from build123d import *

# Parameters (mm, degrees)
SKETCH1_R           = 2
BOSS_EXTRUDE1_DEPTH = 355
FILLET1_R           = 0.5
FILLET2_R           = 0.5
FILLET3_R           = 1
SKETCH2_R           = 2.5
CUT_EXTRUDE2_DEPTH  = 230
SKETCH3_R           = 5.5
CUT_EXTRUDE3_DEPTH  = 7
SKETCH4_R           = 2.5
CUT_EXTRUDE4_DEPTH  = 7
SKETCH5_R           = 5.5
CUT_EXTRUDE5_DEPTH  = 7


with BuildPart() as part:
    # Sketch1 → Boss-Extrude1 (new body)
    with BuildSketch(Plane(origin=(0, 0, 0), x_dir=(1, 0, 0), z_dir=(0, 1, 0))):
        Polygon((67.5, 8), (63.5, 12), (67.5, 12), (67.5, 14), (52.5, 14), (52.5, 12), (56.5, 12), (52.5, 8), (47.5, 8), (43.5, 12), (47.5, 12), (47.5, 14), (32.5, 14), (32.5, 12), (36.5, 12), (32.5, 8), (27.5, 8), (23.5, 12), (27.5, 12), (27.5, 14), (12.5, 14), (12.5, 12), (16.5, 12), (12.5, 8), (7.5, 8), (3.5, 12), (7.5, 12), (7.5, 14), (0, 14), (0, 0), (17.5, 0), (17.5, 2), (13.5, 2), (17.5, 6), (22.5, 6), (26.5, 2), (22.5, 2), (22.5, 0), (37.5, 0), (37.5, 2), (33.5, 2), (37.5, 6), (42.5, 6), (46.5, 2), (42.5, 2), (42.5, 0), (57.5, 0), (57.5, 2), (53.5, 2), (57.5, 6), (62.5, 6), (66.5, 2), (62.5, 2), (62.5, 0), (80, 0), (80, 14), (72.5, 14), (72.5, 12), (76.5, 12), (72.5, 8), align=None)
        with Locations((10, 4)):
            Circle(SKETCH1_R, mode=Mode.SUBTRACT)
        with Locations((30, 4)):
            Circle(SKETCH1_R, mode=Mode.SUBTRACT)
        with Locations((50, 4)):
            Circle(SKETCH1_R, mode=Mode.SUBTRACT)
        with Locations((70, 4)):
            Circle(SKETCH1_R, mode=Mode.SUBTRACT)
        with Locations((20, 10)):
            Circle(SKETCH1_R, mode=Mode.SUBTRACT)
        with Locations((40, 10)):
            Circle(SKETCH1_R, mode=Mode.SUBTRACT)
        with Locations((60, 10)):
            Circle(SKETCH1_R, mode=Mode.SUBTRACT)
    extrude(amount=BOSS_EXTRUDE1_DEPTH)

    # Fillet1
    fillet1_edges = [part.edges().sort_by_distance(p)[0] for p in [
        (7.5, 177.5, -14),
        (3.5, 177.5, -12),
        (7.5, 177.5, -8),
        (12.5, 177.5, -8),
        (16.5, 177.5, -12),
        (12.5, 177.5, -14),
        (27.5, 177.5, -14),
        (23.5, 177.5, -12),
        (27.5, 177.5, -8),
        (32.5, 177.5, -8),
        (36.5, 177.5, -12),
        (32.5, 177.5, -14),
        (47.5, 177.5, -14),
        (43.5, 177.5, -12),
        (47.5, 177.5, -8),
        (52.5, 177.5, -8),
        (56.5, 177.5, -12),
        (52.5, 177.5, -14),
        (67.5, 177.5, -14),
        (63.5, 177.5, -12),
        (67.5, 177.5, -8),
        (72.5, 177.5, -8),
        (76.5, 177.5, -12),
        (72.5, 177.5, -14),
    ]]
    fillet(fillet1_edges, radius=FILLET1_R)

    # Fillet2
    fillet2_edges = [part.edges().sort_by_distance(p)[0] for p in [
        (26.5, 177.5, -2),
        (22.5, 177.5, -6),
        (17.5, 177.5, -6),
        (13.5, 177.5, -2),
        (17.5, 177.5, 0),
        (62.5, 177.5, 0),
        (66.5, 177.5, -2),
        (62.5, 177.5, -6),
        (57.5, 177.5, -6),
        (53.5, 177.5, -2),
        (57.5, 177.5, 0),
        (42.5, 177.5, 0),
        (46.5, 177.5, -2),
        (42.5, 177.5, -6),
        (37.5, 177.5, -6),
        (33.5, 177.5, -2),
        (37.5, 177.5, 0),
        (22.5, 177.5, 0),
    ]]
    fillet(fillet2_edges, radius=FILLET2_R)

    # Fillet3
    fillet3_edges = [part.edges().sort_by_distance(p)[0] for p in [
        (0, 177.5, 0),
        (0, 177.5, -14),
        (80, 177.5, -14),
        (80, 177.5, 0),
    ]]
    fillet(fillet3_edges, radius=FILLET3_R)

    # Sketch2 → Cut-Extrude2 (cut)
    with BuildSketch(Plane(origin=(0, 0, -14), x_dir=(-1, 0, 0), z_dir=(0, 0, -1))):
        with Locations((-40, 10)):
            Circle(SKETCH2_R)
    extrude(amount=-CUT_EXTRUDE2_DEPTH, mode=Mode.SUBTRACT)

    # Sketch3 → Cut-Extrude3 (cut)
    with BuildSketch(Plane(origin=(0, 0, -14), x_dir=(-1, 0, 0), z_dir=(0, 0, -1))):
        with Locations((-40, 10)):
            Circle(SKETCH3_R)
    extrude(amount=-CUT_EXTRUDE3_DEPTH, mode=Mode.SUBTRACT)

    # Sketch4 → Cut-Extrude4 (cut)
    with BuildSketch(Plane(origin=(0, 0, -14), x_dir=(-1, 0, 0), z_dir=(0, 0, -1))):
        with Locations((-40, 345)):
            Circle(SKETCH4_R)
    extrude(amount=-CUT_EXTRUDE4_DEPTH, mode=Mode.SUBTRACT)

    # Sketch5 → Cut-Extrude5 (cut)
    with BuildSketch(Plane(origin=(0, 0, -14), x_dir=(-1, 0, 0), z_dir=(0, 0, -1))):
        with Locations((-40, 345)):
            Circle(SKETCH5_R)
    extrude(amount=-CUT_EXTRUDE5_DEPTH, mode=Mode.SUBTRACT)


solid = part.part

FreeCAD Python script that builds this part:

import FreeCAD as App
import Part
import Sketcher
from FreeCAD import Vector
Q = App.Units.Quantity


def edges_at(feature, points):
    """Names of the edges that pass closest to the given points."""
    edges = feature.Shape.Edges
    near = lambda p: min(range(len(edges)), key=lambda i: edges[i].distToShape(Part.Vertex(*p))[0])
    return sorted({f"Edge{near(p) + 1}" for p in points})

doc = App.newDocument("Part")
body = doc.addObject("PartDesign::Body", "Body")

# Sketch on XZ plane
sketch1 = body.newObject("Sketcher::SketchObject", "Sketch")
sketch1.AttachmentSupport = (doc.getObject("XZ_Plane"), [""])
sketch1.MapMode = "FlatFace"
sketch1.addGeometry([
    Part.LineSegment(Vector(67.5, -8, 0), Vector(63.5, -12, 0)),  # 0
    Part.LineSegment(Vector(63.5, -12, 0), Vector(67.5, -12, 0)),  # 1
    Part.LineSegment(Vector(67.5, -12, 0), Vector(67.5, -14, 0)),  # 2
    Part.LineSegment(Vector(67.5, -14, 0), Vector(52.5, -14, 0)),  # 3
    Part.LineSegment(Vector(52.5, -14, 0), Vector(52.5, -12, 0)),  # 4
    Part.LineSegment(Vector(52.5, -12, 0), Vector(56.5, -12, 0)),  # 5
    Part.LineSegment(Vector(56.5, -12, 0), Vector(52.5, -8, 0)),  # 6
    Part.LineSegment(Vector(52.5, -8, 0), Vector(47.5, -8, 0)),  # 7
    Part.LineSegment(Vector(47.5, -8, 0), Vector(43.5, -12, 0)),  # 8
    Part.LineSegment(Vector(43.5, -12, 0), Vector(47.5, -12, 0)),  # 9
    Part.LineSegment(Vector(47.5, -12, 0), Vector(47.5, -14, 0)),  # 10
    Part.LineSegment(Vector(47.5, -14, 0), Vector(32.5, -14, 0)),  # 11
    Part.LineSegment(Vector(32.5, -14, 0), Vector(32.5, -12, 0)),  # 12
    Part.LineSegment(Vector(32.5, -12, 0), Vector(36.5, -12, 0)),  # 13
    Part.LineSegment(Vector(36.5, -12, 0), Vector(32.5, -8, 0)),  # 14
    Part.LineSegment(Vector(32.5, -8, 0), Vector(27.5, -8, 0)),  # 15
    Part.LineSegment(Vector(27.5, -8, 0), Vector(23.5, -12, 0)),  # 16
    Part.LineSegment(Vector(23.5, -12, 0), Vector(27.5, -12, 0)),  # 17
    Part.LineSegment(Vector(27.5, -12, 0), Vector(27.5, -14, 0)),  # 18
    Part.LineSegment(Vector(27.5, -14, 0), Vector(12.5, -14, 0)),  # 19
    Part.LineSegment(Vector(12.5, -14, 0), Vector(12.5, -12, 0)),  # 20
    Part.LineSegment(Vector(12.5, -12, 0), Vector(16.5, -12, 0)),  # 21
    Part.LineSegment(Vector(16.5, -12, 0), Vector(12.5, -8, 0)),  # 22
    Part.LineSegment(Vector(12.5, -8, 0), Vector(7.5, -8, 0)),  # 23
    Part.LineSegment(Vector(7.5, -8, 0), Vector(3.5, -12, 0)),  # 24
    Part.LineSegment(Vector(3.5, -12, 0), Vector(7.5, -12, 0)),  # 25
    Part.LineSegment(Vector(7.5, -12, 0), Vector(7.5, -14, 0)),  # 26
    Part.LineSegment(Vector(7.5, -14, 0), Vector(0, -14, 0)),  # 27
    Part.LineSegment(Vector(0, -14, 0), Vector(0, 0, 0)),  # 28
    Part.LineSegment(Vector(0, 0, 0), Vector(17.5, 0, 0)),  # 29
    Part.LineSegment(Vector(17.5, 0, 0), Vector(17.5, -2, 0)),  # 30
    Part.LineSegment(Vector(17.5, -2, 0), Vector(13.5, -2, 0)),  # 31
    Part.LineSegment(Vector(13.5, -2, 0), Vector(17.5, -6, 0)),  # 32
    Part.LineSegment(Vector(17.5, -6, 0), Vector(22.5, -6, 0)),  # 33
    Part.LineSegment(Vector(22.5, -6, 0), Vector(26.5, -2, 0)),  # 34
    Part.LineSegment(Vector(26.5, -2, 0), Vector(22.5, -2, 0)),  # 35
    Part.LineSegment(Vector(22.5, -2, 0), Vector(22.5, 0, 0)),  # 36
    Part.LineSegment(Vector(22.5, 0, 0), Vector(37.5, 0, 0)),  # 37
    Part.LineSegment(Vector(37.5, 0, 0), Vector(37.5, -2, 0)),  # 38
    Part.LineSegment(Vector(37.5, -2, 0), Vector(33.5, -2, 0)),  # 39
    Part.LineSegment(Vector(33.5, -2, 0), Vector(37.5, -6, 0)),  # 40
    Part.LineSegment(Vector(37.5, -6, 0), Vector(42.5, -6, 0)),  # 41
    Part.LineSegment(Vector(42.5, -6, 0), Vector(46.5, -2, 0)),  # 42
    Part.LineSegment(Vector(46.5, -2, 0), Vector(42.5, -2, 0)),  # 43
    Part.LineSegment(Vector(42.5, -2, 0), Vector(42.5, 0, 0)),  # 44
    Part.LineSegment(Vector(42.5, 0, 0), Vector(57.5, 0, 0)),  # 45
    Part.LineSegment(Vector(57.5, 0, 0), Vector(57.5, -2, 0)),  # 46
    Part.LineSegment(Vector(57.5, -2, 0), Vector(53.5, -2, 0)),  # 47
    Part.LineSegment(Vector(53.5, -2, 0), Vector(57.5, -6, 0)),  # 48
    Part.LineSegment(Vector(57.5, -6, 0), Vector(62.5, -6, 0)),  # 49
    Part.LineSegment(Vector(62.5, -6, 0), Vector(66.5, -2, 0)),  # 50
    Part.LineSegment(Vector(66.5, -2, 0), Vector(62.5, -2, 0)),  # 51
    Part.LineSegment(Vector(62.5, -2, 0), Vector(62.5, 0, 0)),  # 52
    Part.LineSegment(Vector(62.5, 0, 0), Vector(80, 0, 0)),  # 53
    Part.LineSegment(Vector(80, 0, 0), Vector(80, -14, 0)),  # 54
    Part.LineSegment(Vector(80, -14, 0), Vector(72.5, -14, 0)),  # 55
    Part.LineSegment(Vector(72.5, -14, 0), Vector(72.5, -12, 0)),  # 56
    Part.LineSegment(Vector(72.5, -12, 0), Vector(76.5, -12, 0)),  # 57
    Part.LineSegment(Vector(76.5, -12, 0), Vector(72.5, -8, 0)),  # 58
    Part.LineSegment(Vector(72.5, -8, 0), Vector(67.5, -8, 0)),  # 59
    Part.Circle(Vector(10, -4, 0), Vector(0, 0, 1), 2),  # 60
    Part.Circle(Vector(30, -4, 0), Vector(0, 0, 1), 2),  # 61
    Part.Circle(Vector(50, -4, 0), Vector(0, 0, 1), 2),  # 62
    Part.Circle(Vector(70, -4, 0), Vector(0, 0, 1), 2),  # 63
    Part.Circle(Vector(20, -10, 0), Vector(0, 0, 1), 2),  # 64
    Part.Circle(Vector(40, -10, 0), Vector(0, 0, 1), 2),  # 65
    Part.Circle(Vector(60, -10, 0), Vector(0, 0, 1), 2),  # 66
], False)
sketch1.addConstraint([
    Sketcher.Constraint("Coincident", 0, 2, 1, 1),
    Sketcher.Constraint("Coincident", 1, 2, 2, 1),
    Sketcher.Constraint("Coincident", 2, 2, 3, 1),
    Sketcher.Constraint("Coincident", 3, 2, 4, 1),
    Sketcher.Constraint("Coincident", 4, 2, 5, 1),
    Sketcher.Constraint("Coincident", 5, 2, 6, 1),
    Sketcher.Constraint("Coincident", 6, 2, 7, 1),
    Sketcher.Constraint("Coincident", 7, 2, 8, 1),
    Sketcher.Constraint("Coincident", 8, 2, 9, 1),
    Sketcher.Constraint("Coincident", 9, 2, 10, 1),
    Sketcher.Constraint("Coincident", 10, 2, 11, 1),
    Sketcher.Constraint("Coincident", 11, 2, 12, 1),
    Sketcher.Constraint("Coincident", 12, 2, 13, 1),
    Sketcher.Constraint("Coincident", 13, 2, 14, 1),
    Sketcher.Constraint("Coincident", 14, 2, 15, 1),
    Sketcher.Constraint("Coincident", 15, 2, 16, 1),
    Sketcher.Constraint("Coincident", 16, 2, 17, 1),
    Sketcher.Constraint("Coincident", 17, 2, 18, 1),
    Sketcher.Constraint("Coincident", 18, 2, 19, 1),
    Sketcher.Constraint("Coincident", 19, 2, 20, 1),
    Sketcher.Constraint("Coincident", 20, 2, 21, 1),
    Sketcher.Constraint("Coincident", 21, 2, 22, 1),
    Sketcher.Constraint("Coincident", 22, 2, 23, 1),
    Sketcher.Constraint("Coincident", 23, 2, 24, 1),
    Sketcher.Constraint("Coincident", 24, 2, 25, 1),
    Sketcher.Constraint("Coincident", 25, 2, 26, 1),
    Sketcher.Constraint("Coincident", 26, 2, 27, 1),
    Sketcher.Constraint("Coincident", 27, 2, 28, 1),
    Sketcher.Constraint("Coincident", 28, 2, 29, 1),
    Sketcher.Constraint("Coincident", 29, 2, 30, 1),
    Sketcher.Constraint("Coincident", 30, 2, 31, 1),
    Sketcher.Constraint("Coincident", 31, 2, 32, 1),
    Sketcher.Constraint("Coincident", 32, 2, 33, 1),
    Sketcher.Constraint("Coincident", 33, 2, 34, 1),
    Sketcher.Constraint("Coincident", 34, 2, 35, 1),
    Sketcher.Constraint("Coincident", 35, 2, 36, 1),
    Sketcher.Constraint("Coincident", 36, 2, 37, 1),
    Sketcher.Constraint("Coincident", 37, 2, 38, 1),
    Sketcher.Constraint("Coincident", 38, 2, 39, 1),
    Sketcher.Constraint("Coincident", 39, 2, 40, 1),
    Sketcher.Constraint("Coincident", 40, 2, 41, 1),
    Sketcher.Constraint("Coincident", 41, 2, 42, 1),
    Sketcher.Constraint("Coincident", 42, 2, 43, 1),
    Sketcher.Constraint("Coincident", 43, 2, 44, 1),
    Sketcher.Constraint("Coincident", 44, 2, 45, 1),
    Sketcher.Constraint("Coincident", 45, 2, 46, 1),
    Sketcher.Constraint("Coincident", 46, 2, 47, 1),
    Sketcher.Constraint("Coincident", 47, 2, 48, 1),
    Sketcher.Constraint("Coincident", 48, 2, 49, 1),
    Sketcher.Constraint("Coincident", 49, 2, 50, 1),
    Sketcher.Constraint("Coincident", 50, 2, 51, 1),
    Sketcher.Constraint("Coincident", 51, 2, 52, 1),
    Sketcher.Constraint("Coincident", 52, 2, 53, 1),
    Sketcher.Constraint("Coincident", 53, 2, 54, 1),
    Sketcher.Constraint("Coincident", 54, 2, 55, 1),
    Sketcher.Constraint("Coincident", 55, 2, 56, 1),
    Sketcher.Constraint("Coincident", 56, 2, 57, 1),
    Sketcher.Constraint("Coincident", 57, 2, 58, 1),
    Sketcher.Constraint("Coincident", 58, 2, 59, 1),
    Sketcher.Constraint("Coincident", 59, 2, 0, 1),
    Sketcher.Constraint("Horizontal", 1),
    Sketcher.Constraint("Vertical", 2),
    Sketcher.Constraint("Horizontal", 3),
    Sketcher.Constraint("Vertical", 4),
    Sketcher.Constraint("Horizontal", 5),
    Sketcher.Constraint("Horizontal", 7),
    Sketcher.Constraint("Horizontal", 9),
    Sketcher.Constraint("Vertical", 10),
    Sketcher.Constraint("Horizontal", 11),
    Sketcher.Constraint("Vertical", 12),
    Sketcher.Constraint("Horizontal", 13),
    Sketcher.Constraint("Horizontal", 15),
    Sketcher.Constraint("Horizontal", 17),
    Sketcher.Constraint("Vertical", 18),
    Sketcher.Constraint("Horizontal", 19),
    Sketcher.Constraint("Vertical", 20),
    Sketcher.Constraint("Horizontal", 21),
    Sketcher.Constraint("Horizontal", 23),
    Sketcher.Constraint("Horizontal", 25),
    Sketcher.Constraint("Vertical", 26),
    Sketcher.Constraint("Horizontal", 27),
    Sketcher.Constraint("Vertical", 28),
    Sketcher.Constraint("Horizontal", 29),
    Sketcher.Constraint("Vertical", 30),
    Sketcher.Constraint("Horizontal", 31),
    Sketcher.Constraint("Horizontal", 33),
    Sketcher.Constraint("Horizontal", 35),
    Sketcher.Constraint("Vertical", 36),
    Sketcher.Constraint("Horizontal", 37),
    Sketcher.Constraint("Vertical", 38),
    Sketcher.Constraint("Horizontal", 39),
    Sketcher.Constraint("Horizontal", 41),
    Sketcher.Constraint("Horizontal", 43),
    Sketcher.Constraint("Vertical", 44),
    Sketcher.Constraint("Horizontal", 45),
    Sketcher.Constraint("Vertical", 46),
    Sketcher.Constraint("Horizontal", 47),
    Sketcher.Constraint("Horizontal", 49),
    Sketcher.Constraint("Horizontal", 51),
    Sketcher.Constraint("Vertical", 52),
    Sketcher.Constraint("Horizontal", 53),
    Sketcher.Constraint("Vertical", 54),
    Sketcher.Constraint("Horizontal", 55),
    Sketcher.Constraint("Vertical", 56),
    Sketcher.Constraint("Horizontal", 57),
    Sketcher.Constraint("Horizontal", 59),
    Sketcher.Constraint("Coincident", 28, 2, -1, 1),
    Sketcher.Constraint("Equal", 60, 61),
    Sketcher.Constraint("Equal", 61, 62),
    Sketcher.Constraint("Equal", 62, 63),
    Sketcher.Constraint("Equal", 63, 64),
    Sketcher.Constraint("Equal", 64, 65),
    Sketcher.Constraint("Equal", 65, 66),
    Sketcher.Constraint("PointOnObject", 36, 2, -1),
    Sketcher.Constraint("PointOnObject", 44, 2, -1),
    Sketcher.Constraint("PointOnObject", 52, 2, -1),
    Sketcher.Constraint("Perpendicular", 0, 6),
    Sketcher.Constraint("Perpendicular", 6, 8),
    Sketcher.Constraint("Perpendicular", 8, 14),
    Sketcher.Constraint("Perpendicular", 14, 16),
    Sketcher.Constraint("Perpendicular", 16, 22),
    Sketcher.Constraint("Perpendicular", 22, 24),
    Sketcher.Constraint("Perpendicular", 24, 32),
    Sketcher.Constraint("Perpendicular", 32, 34),
    Sketcher.Constraint("Perpendicular", 34, 40),
    Sketcher.Constraint("Perpendicular", 40, 42),
    Sketcher.Constraint("Perpendicular", 42, 48),
    Sketcher.Constraint("Perpendicular", 48, 50),
    Sketcher.Constraint("Perpendicular", 50, 58),
    Sketcher.Constraint("Horizontal", 60, 3, 61, 3),
    Sketcher.Constraint("Horizontal", 61, 3, 62, 3),
    Sketcher.Constraint("Horizontal", 62, 3, 63, 3),
    Sketcher.Constraint("Horizontal", 64, 3, 65, 3),
    Sketcher.Constraint("Horizontal", 65, 3, 66, 3),
    Sketcher.Constraint("Horizontal", 1, 2, 4, 2),
    Sketcher.Constraint("Horizontal", 5, 2, 8, 2),
    Sketcher.Constraint("Horizontal", 3, 2, 10, 2),
    Sketcher.Constraint("Horizontal", 9, 2, 12, 2),
    Sketcher.Constraint("Horizontal", 7, 2, 14, 2),
    Sketcher.Constraint("Horizontal", 13, 2, 16, 2),
    Sketcher.Constraint("Horizontal", 11, 2, 18, 2),
    Sketcher.Constraint("Horizontal", 17, 2, 20, 2),
    Sketcher.Constraint("Horizontal", 15, 2, 22, 2),
    Sketcher.Constraint("Horizontal", 21, 2, 24, 2),
    Sketcher.Constraint("Horizontal", 19, 2, 26, 2),
    Sketcher.Constraint("Horizontal", 31, 2, 34, 2),
    Sketcher.Constraint("Horizontal", 35, 2, 38, 2),
    Sketcher.Constraint("Horizontal", 33, 2, 40, 2),
    Sketcher.Constraint("Horizontal", 39, 2, 42, 2),
    Sketcher.Constraint("Horizontal", 43, 2, 46, 2),
    Sketcher.Constraint("Horizontal", 41, 2, 48, 2),
    Sketcher.Constraint("Horizontal", 47, 2, 50, 2),
    Sketcher.Constraint("Horizontal", 27, 2, 54, 2),
    Sketcher.Constraint("Horizontal", 25, 2, 56, 2),
    Sketcher.Constraint("Horizontal", 23, 2, 58, 2),
    Sketcher.Constraint("Vertical", 4, 2, 6, 2),
    Sketcher.Constraint("Vertical", 7, 2, 9, 2),
    Sketcher.Constraint("Vertical", 12, 2, 14, 2),
    Sketcher.Constraint("Vertical", 15, 2, 17, 2),
    Sketcher.Constraint("Vertical", 20, 2, 22, 2),
    Sketcher.Constraint("Vertical", 23, 2, 25, 2),
    Sketcher.Constraint("Vertical", 30, 2, 32, 2),
    Sketcher.Constraint("Vertical", 33, 2, 35, 2),
    Sketcher.Constraint("Vertical", 38, 2, 40, 2),
    Sketcher.Constraint("Vertical", 41, 2, 43, 2),
    Sketcher.Constraint("Vertical", 46, 2, 48, 2),
    Sketcher.Constraint("Vertical", 49, 2, 51, 2),
    Sketcher.Constraint("Vertical", 56, 2, 58, 2),
    Sketcher.Constraint("Vertical", 2, 2, 59, 2),
    Sketcher.Constraint("Equal", 1, 5),
    Sketcher.Constraint("Equal", 3, 11),
    Sketcher.Constraint("Equal", 7, 15),
    Sketcher.Constraint("Equal", 11, 19),
    Sketcher.Constraint("Equal", 15, 23),
    Sketcher.Constraint("Equal", 25, 31),
    Sketcher.Constraint("Equal", 23, 33),
    Sketcher.Constraint("Equal", 19, 37),
    Sketcher.Constraint("Equal", 33, 41),
    Sketcher.Constraint("Equal", 37, 45),
    Sketcher.Constraint("Equal", 41, 49),
    Sketcher.Constraint("Equal", 29, 53),
    Sketcher.Constraint("Equal", 27, 55),
    Sketcher.Constraint("Equal", 49, 59),
    Sketcher.Constraint("Equal", 26, 30),
    Sketcher.Constraint("Diameter", 60, Q("4 mm")),
    Sketcher.Constraint("DistanceX", 1, 1, 1, 2, Q("4 mm")),
    Sketcher.Constraint("DistanceX", 3, 2, 3, 1, Q("15 mm")),
    Sketcher.Constraint("DistanceX", 7, 2, 7, 1, Q("5 mm")),
    Sketcher.Constraint("DistanceY", 2, 2, 2, 1, Q("2 mm")),
    Sketcher.Constraint("DistanceY", 28, 1, 28, 2, Q("14 mm")),
    Sketcher.Constraint("DistanceX", 27, 2, 27, 1, Q("7.5 mm")),
    Sketcher.Constraint("DistanceX", -1, 1, 60, 3, Q("10 mm")),
    Sketcher.Constraint("DistanceY", 60, 3, -1, 1, Q("4 mm")),
    Sketcher.Constraint("DistanceX", -1, 1, 61, 3, Q("30 mm")),
    Sketcher.Constraint("DistanceX", -1, 1, 62, 3, Q("50 mm")),
    Sketcher.Constraint("DistanceX", -1, 1, 63, 3, Q("70 mm")),
    Sketcher.Constraint("DistanceX", -1, 1, 64, 3, Q("20 mm")),
    Sketcher.Constraint("DistanceY", 64, 3, -1, 1, Q("10 mm")),
    Sketcher.Constraint("DistanceX", -1, 1, 65, 3, Q("40 mm")),
    Sketcher.Constraint("DistanceX", -1, 1, 66, 3, Q("60 mm")),
])
pad1 = body.newObject("PartDesign::Pad", "Pad")
pad1.Profile = sketch1
pad1.Length = 355
pad1.Reversed = True
doc.recompute()

fillet = body.newObject("PartDesign::Fillet", "Fillet")
fillet.Base = (pad1, edges_at(pad1, [
    (7.5, 177.5, -14),
    (3.5, 177.5, -12),
    (7.5, 177.5, -8),
    (12.5, 177.5, -8),
    (16.5, 177.5, -12),
    (12.5, 177.5, -14),
    (27.5, 177.5, -14),
    (23.5, 177.5, -12),
    (27.5, 177.5, -8),
    (32.5, 177.5, -8),
    (36.5, 177.5, -12),
    (32.5, 177.5, -14),
    (47.5, 177.5, -14),
    (43.5, 177.5, -12),
    (47.5, 177.5, -8),
    (52.5, 177.5, -8),
    (56.5, 177.5, -12),
    (52.5, 177.5, -14),
    (67.5, 177.5, -14),
    (63.5, 177.5, -12),
    (67.5, 177.5, -8),
    (72.5, 177.5, -8),
    (76.5, 177.5, -12),
    (72.5, 177.5, -14),
]))
fillet.Radius = 0.5
doc.recompute()

fillet2 = body.newObject("PartDesign::Fillet", "Fillet001")
fillet2.Base = (fillet, edges_at(fillet, [
    (26.5, 177.5, -2),
    (22.5, 177.5, -6),
    (17.5, 177.5, -6),
    (13.5, 177.5, -2),
    (17.5, 177.5, 0),
    (62.5, 177.5, 0),
    (66.5, 177.5, -2),
    (62.5, 177.5, -6),
    (57.5, 177.5, -6),
    (53.5, 177.5, -2),
    (57.5, 177.5, 0),
    (42.5, 177.5, 0),
    (46.5, 177.5, -2),
    (42.5, 177.5, -6),
    (37.5, 177.5, -6),
    (33.5, 177.5, -2),
    (37.5, 177.5, 0),
    (22.5, 177.5, 0),
]))
fillet2.Radius = 0.5
doc.recompute()

fillet3 = body.newObject("PartDesign::Fillet", "Fillet002")
fillet3.Base = (fillet2, edges_at(fillet2, [
    (0, 177.5, 0),
    (0, 177.5, -14),
    (80, 177.5, -14),
    (80, 177.5, 0),
]))
fillet3.Radius = 1

# Sketch on XY plane
sketch2 = body.newObject("Sketcher::SketchObject", "Sketch001")
sketch2.AttachmentSupport = (doc.getObject("XY_Plane"), [""])
sketch2.MapMode = "FlatFace"
sketch2.AttachmentOffset = App.Placement(Vector(0, 0, -14), App.Rotation())
sketch2.addGeometry(Part.Circle(Vector(40, 10, 0), Vector(0, 0, 1), 2.5), False)
sketch2.addConstraint([
    Sketcher.Constraint("Diameter", 0, Q("5 mm")),
    Sketcher.Constraint("DistanceX", -1, 1, 0, 3, Q("40 mm")),
    Sketcher.Constraint("DistanceY", -1, 1, 0, 3, Q("10 mm")),
])
pocket1 = body.newObject("PartDesign::Pocket", "Pocket")
pocket1.Profile = sketch2
pocket1.Length = 230
pocket1.Reversed = True

# Sketch on XY plane
sketch3 = body.newObject("Sketcher::SketchObject", "Sketch002")
sketch3.AttachmentSupport = (doc.getObject("XY_Plane"), [""])
sketch3.MapMode = "FlatFace"
sketch3.AttachmentOffset = App.Placement(Vector(0, 0, -14), App.Rotation())
sketch3.addGeometry(Part.Circle(Vector(40, 10, 0), Vector(0, 0, 1), 5.5), False)
sketch3.addConstraint([
    Sketcher.Constraint("Diameter", 0, Q("11 mm")),
    Sketcher.Constraint("DistanceX", -1, 1, 0, 3, Q("40 mm")),
    Sketcher.Constraint("DistanceY", -1, 1, 0, 3, Q("10 mm")),
])
pocket2 = body.newObject("PartDesign::Pocket", "Pocket001")
pocket2.Profile = sketch3
pocket2.Length = 7
pocket2.Reversed = True

# Sketch on XY plane
sketch4 = body.newObject("Sketcher::SketchObject", "Sketch003")
sketch4.AttachmentSupport = (doc.getObject("XY_Plane"), [""])
sketch4.MapMode = "FlatFace"
sketch4.AttachmentOffset = App.Placement(Vector(0, 0, -14), App.Rotation())
sketch4.addGeometry(Part.Circle(Vector(40, 345, 0), Vector(0, 0, 1), 2.5), False)
sketch4.addConstraint([
    Sketcher.Constraint("Diameter", 0, Q("5 mm")),
    Sketcher.Constraint("DistanceX", -1, 1, 0, 3, Q("40 mm")),
    Sketcher.Constraint("DistanceY", -1, 1, 0, 3, Q("345 mm")),
])
pocket3 = body.newObject("PartDesign::Pocket", "Pocket002")
pocket3.Profile = sketch4
pocket3.Length = 7
pocket3.Reversed = True

# Sketch on XY plane
sketch5 = body.newObject("Sketcher::SketchObject", "Sketch004")
sketch5.AttachmentSupport = (doc.getObject("XY_Plane"), [""])
sketch5.MapMode = "FlatFace"
sketch5.AttachmentOffset = App.Placement(Vector(0, 0, -14), App.Rotation())
sketch5.addGeometry(Part.Circle(Vector(40, 345, 0), Vector(0, 0, 1), 5.5), False)
sketch5.addConstraint([
    Sketcher.Constraint("Diameter", 0, Q("11 mm")),
    Sketcher.Constraint("DistanceX", -1, 1, 0, 3, Q("40 mm")),
    Sketcher.Constraint("DistanceY", -1, 1, 0, 3, Q("345 mm")),
])
pocket4 = body.newObject("PartDesign::Pocket", "Pocket003")
pocket4.Profile = sketch5
pocket4.Length = 7
pocket4.Reversed = True

doc.recompute()
